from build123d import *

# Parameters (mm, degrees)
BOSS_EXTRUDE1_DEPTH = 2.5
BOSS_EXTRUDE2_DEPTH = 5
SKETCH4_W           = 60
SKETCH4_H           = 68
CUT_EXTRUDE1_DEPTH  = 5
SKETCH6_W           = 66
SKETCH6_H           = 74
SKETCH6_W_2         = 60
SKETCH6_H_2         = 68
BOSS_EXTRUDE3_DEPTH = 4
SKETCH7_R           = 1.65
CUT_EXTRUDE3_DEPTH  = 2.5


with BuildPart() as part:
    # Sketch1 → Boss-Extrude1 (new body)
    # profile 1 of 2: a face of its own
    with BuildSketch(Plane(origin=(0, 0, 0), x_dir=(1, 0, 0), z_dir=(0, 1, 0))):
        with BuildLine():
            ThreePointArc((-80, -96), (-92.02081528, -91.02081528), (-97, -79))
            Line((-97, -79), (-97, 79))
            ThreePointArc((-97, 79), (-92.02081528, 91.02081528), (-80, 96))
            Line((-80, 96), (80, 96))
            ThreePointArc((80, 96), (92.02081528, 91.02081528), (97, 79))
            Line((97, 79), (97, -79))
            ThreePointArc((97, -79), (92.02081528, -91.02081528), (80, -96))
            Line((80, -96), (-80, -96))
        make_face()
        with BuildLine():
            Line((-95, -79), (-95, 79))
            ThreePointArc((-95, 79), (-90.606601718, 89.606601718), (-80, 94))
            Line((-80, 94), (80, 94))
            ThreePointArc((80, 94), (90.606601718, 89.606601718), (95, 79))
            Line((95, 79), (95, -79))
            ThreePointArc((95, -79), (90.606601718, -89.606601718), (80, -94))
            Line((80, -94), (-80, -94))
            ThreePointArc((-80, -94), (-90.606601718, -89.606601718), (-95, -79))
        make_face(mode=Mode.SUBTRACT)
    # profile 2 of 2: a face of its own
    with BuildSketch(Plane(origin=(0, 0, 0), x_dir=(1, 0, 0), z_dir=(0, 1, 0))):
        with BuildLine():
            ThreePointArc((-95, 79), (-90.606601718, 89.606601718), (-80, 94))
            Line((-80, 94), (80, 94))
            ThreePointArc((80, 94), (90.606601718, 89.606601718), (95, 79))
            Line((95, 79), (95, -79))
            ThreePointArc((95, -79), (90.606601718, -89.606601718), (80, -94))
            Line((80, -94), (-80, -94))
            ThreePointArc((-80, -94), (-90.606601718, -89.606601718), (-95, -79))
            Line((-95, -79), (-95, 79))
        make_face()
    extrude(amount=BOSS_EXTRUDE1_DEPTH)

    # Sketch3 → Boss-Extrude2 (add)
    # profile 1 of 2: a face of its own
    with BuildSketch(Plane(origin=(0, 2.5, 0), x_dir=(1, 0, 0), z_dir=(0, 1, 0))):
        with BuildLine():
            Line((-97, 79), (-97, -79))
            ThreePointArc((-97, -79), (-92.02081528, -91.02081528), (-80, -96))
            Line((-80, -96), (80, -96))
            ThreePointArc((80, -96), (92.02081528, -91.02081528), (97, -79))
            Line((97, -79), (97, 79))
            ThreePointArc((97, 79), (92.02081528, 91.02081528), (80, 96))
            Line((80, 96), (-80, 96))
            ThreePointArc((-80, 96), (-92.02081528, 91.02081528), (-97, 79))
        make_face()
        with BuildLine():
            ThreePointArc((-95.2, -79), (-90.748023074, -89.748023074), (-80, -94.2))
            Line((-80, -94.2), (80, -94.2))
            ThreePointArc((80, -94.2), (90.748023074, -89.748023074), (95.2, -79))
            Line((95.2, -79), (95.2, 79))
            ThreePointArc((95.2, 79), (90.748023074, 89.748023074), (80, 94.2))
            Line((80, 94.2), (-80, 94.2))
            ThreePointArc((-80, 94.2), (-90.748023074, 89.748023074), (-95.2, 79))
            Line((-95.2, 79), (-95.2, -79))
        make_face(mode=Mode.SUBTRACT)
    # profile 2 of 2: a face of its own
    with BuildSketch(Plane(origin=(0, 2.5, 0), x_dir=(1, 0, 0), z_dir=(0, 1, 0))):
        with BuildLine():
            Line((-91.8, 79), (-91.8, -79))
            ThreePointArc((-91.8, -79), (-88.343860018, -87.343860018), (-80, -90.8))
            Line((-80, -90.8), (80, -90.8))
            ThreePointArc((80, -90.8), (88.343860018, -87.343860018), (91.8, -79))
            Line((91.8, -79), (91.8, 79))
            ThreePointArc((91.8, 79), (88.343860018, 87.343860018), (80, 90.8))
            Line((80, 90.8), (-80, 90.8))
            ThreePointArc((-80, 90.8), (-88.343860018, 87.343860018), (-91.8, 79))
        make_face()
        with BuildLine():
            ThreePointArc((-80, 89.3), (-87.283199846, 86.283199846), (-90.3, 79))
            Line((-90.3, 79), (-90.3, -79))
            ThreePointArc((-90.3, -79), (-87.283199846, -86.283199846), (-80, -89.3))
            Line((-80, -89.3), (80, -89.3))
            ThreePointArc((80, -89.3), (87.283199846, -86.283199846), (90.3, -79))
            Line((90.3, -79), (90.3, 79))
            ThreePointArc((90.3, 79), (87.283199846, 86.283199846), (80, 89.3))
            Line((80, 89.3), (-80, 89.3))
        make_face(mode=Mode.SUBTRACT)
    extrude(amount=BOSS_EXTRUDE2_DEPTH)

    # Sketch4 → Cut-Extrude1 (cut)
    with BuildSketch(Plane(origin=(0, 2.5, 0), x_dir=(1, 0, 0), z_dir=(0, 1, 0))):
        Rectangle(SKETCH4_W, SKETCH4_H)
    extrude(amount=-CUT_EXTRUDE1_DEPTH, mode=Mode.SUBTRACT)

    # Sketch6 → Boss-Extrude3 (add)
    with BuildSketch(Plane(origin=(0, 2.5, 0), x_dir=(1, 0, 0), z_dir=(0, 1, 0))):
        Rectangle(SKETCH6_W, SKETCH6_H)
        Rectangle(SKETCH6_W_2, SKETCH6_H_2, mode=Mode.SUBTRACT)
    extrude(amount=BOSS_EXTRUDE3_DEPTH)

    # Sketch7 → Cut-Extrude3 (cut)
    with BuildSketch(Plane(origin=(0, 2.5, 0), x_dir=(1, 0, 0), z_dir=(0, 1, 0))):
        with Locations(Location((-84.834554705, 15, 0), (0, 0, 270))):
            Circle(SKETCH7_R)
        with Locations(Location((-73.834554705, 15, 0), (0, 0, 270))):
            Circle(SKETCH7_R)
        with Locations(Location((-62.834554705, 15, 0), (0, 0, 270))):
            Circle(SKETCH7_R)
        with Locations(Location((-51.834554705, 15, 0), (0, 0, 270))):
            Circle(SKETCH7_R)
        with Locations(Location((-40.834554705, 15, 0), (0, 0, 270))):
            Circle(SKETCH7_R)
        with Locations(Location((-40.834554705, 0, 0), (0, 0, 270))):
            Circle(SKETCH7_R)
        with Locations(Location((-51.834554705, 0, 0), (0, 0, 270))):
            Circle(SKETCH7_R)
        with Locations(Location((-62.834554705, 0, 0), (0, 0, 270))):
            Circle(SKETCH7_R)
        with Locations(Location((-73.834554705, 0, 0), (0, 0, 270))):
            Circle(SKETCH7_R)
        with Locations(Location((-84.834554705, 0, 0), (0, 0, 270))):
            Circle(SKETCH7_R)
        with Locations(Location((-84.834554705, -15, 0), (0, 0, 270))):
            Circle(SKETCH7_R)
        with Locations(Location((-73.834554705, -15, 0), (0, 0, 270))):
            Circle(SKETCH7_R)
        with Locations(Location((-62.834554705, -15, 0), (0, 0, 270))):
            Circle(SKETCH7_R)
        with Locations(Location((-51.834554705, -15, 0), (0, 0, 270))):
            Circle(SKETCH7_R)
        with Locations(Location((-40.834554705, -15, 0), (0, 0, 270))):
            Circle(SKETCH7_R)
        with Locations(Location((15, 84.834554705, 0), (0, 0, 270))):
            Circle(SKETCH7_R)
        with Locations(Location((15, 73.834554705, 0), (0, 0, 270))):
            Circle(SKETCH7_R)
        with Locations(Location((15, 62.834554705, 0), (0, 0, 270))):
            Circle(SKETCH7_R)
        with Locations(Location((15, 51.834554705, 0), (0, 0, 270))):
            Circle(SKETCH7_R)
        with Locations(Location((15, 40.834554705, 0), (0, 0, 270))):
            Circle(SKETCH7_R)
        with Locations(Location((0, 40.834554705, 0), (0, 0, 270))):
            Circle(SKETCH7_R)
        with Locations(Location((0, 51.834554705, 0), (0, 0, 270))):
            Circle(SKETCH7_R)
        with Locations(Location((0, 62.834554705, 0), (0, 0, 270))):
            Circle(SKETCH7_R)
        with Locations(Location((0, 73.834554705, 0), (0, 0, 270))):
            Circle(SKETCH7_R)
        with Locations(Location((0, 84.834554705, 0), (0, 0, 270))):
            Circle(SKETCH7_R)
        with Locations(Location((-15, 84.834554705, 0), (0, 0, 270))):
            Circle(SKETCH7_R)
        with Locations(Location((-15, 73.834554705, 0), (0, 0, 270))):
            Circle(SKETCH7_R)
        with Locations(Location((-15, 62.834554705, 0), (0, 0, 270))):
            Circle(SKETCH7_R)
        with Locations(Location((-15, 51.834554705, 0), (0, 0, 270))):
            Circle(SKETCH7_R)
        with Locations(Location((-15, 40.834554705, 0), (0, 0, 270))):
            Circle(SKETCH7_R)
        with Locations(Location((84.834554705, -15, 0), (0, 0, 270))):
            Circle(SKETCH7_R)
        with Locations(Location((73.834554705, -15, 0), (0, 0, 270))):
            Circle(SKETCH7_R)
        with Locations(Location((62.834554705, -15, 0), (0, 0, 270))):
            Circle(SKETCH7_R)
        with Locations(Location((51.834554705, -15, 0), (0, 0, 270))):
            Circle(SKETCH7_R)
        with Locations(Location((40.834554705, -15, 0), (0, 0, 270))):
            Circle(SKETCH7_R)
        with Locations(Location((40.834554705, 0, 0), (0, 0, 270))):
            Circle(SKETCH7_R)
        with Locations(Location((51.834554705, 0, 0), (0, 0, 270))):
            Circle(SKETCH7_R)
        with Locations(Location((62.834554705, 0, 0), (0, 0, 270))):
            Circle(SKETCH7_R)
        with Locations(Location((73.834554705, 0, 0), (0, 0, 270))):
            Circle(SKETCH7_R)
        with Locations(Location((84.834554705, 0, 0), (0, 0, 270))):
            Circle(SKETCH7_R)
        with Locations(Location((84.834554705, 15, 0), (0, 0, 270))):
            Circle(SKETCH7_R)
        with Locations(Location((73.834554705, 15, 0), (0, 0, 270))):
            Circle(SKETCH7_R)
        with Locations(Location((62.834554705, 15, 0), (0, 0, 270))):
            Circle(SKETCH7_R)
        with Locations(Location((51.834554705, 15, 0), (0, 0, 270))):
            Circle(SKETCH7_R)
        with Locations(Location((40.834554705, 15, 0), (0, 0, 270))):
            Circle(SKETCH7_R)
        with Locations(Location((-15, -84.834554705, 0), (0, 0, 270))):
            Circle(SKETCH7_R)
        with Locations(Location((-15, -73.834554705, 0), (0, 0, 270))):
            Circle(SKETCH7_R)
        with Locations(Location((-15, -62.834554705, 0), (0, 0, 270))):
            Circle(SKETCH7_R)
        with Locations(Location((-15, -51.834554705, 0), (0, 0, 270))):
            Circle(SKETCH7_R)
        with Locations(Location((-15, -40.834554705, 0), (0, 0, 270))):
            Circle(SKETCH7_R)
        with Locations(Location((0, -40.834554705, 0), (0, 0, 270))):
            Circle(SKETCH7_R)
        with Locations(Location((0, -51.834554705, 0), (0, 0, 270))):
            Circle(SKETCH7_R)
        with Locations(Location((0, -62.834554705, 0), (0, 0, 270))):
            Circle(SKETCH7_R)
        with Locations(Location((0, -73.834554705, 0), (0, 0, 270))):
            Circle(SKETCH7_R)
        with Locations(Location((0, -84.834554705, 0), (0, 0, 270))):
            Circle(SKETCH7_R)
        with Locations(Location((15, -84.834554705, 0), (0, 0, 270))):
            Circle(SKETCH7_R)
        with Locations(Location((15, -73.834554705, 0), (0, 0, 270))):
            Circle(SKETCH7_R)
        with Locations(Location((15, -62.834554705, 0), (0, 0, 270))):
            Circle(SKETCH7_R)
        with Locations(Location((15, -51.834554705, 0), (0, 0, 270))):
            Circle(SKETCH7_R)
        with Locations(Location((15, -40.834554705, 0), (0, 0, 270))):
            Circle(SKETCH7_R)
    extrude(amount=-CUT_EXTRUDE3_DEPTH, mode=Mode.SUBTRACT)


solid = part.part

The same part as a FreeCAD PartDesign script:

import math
import FreeCAD as App
import Part
import Sketcher

V = App.Vector
Q = App.Units.Quantity


def add_polygon(sketch, points):
    """Adds a closed chain of lines whose ends are joined by coincident constraints."""
    first, n = sketch.GeometryCount, len(points)
    for a, b in zip(points, points[1:] + points[:1]):
        sketch.addGeometry(Part.LineSegment(App.Vector(*a, 0), App.Vector(*b, 0)), False)
    for i in range(n):
        sketch.addConstraint(Sketcher.Constraint("Coincident", first + i, 2, first + (i + 1) % n, 1))

doc = App.newDocument("Part")
params = doc.addObject("Spreadsheet::Sheet", "Params")
for row, (alias, value) in enumerate([
    ("sketch1_radius", "17 mm"),
    ("sketch1_width", "160 mm"),
    ("sketch1_height", "158 mm"),
    ("pad1_length", "2.5 mm"),
    ("sketch2_radius", "17 mm"),
    ("sketch2_radius2", "15.2 mm"),
    ("sketch2_radius3", "11.8 mm"),
    ("sketch2_radius4", "10.3 mm"),
    ("sketch2_width", "160 mm"),
    ("pad2_length", "5 mm"),
    ("sketch3_width", "60 mm"),
    ("sketch3_height", "68 mm"),
    ("pocket1_length", "5 mm"),
    ("sketch4_width", "66 mm"),
    ("sketch4_width2", "60 mm"),
    ("sketch4_height", "74 mm"),
    ("sketch4_height2", "68 mm"),
    ("pad3_length", "4 mm"),
    ("sketch5_diameter", "3.3 mm"),
    ("pocket2_length", "2.5 mm"),
], start=1):
    params.set(f"A{row}", alias)
    params.set(f"B{row}", "=" + value)
    params.setAlias(f"B{row}", alias)

body = doc.addObject("PartDesign::Body", "Body")

# Sketch on XZ plane
sketch1 = doc.addObject("Sketcher::SketchObject", "Sketch")
body.addObject(sketch1)
sketch1.AttachmentSupport = (doc.XZ_Plane, [""])
sketch1.MapMode = "FlatFace"
sketch1.addGeometry([
    Part.ArcOfCircle(Part.Circle(V(-80, 79, 0), V(0, 0, 1), 17), math.radians(90), math.radians(180)),  # 0
    Part.LineSegment(V(-80, 96, 0), V(80, 96, 0)),  # 1
    Part.ArcOfCircle(Part.Circle(V(80, 79, 0), V(0, 0, 1), 17), math.radians(0), math.radians(90)),  # 2
    Part.LineSegment(V(97, 79, 0), V(97, -79, 0)),  # 3
    Part.ArcOfCircle(Part.Circle(V(80, -79, 0), V(0, 0, 1), 17), math.radians(-90), math.radians(0)),  # 4
    Part.LineSegment(V(80, -96, 0), V(-80, -96, 0)),  # 5
    Part.ArcOfCircle(Part.Circle(V(-80, -79, 0), V(0, 0, 1), 17), math.radians(-180), math.radians(-90)),  # 6
    Part.LineSegment(V(-97, -79, 0), V(-97, 79, 0)),  # 7
], False)
sketch1.addConstraint([
    Sketcher.Constraint("Tangent", 0, 1, 1, 1),
    Sketcher.Constraint("Tangent", 1, 2, 2, 2),
    Sketcher.Constraint("Tangent", 2, 1, 3, 1),
    Sketcher.Constraint("Tangent", 3, 2, 4, 2),
    Sketcher.Constraint("Tangent", 4, 1, 5, 1),
    Sketcher.Constraint("Tangent", 5, 2, 6, 2),
    Sketcher.Constraint("Tangent", 6, 1, 7, 1),
    Sketcher.Constraint("Tangent", 7, 2, 0, 2),
    Sketcher.Constraint("Horizontal", 1),
    Sketcher.Constraint("Vertical", 3),
    Sketcher.Constraint("Horizontal", 5),
    Sketcher.Constraint("Vertical", 7),
    Sketcher.Constraint("Equal", 0, 2),
    Sketcher.Constraint("Equal", 2, 4),
    Sketcher.Constraint("Equal", 4, 6),
    Sketcher.Constraint("Symmetric", 0, 3, 4, 3, -1, 1),
    Sketcher.Constraint("Radius", 0, Q("17 mm")),
    Sketcher.Constraint("DistanceX", 1, 1, 1, 2, Q("160 mm")),
    Sketcher.Constraint("DistanceY", 3, 2, 3, 1, Q("158 mm")),
])
sketch1.setExpression("Constraints[16]", "Params.sketch1_radius")
sketch1.setExpression("Constraints[17]", "Params.sketch1_width")
sketch1.setExpression("Constraints[18]", "Params.sketch1_height")
pad1 = doc.addObject("PartDesign::Pad", "Pad")
body.addObject(pad1)
pad1.Profile = sketch1
pad1.setExpression("Length", "Params.pad1_length")
pad1.Reversed = True

# Sketch on XZ plane
sketch2 = doc.addObject("Sketcher::SketchObject", "Sketch001")
body.addObject(sketch2)
sketch2.AttachmentSupport = (doc.XZ_Plane, [""])
sketch2.MapMode = "FlatFace"
sketch2.AttachmentOffset = App.Placement(V(0, 0, -2.5), App.Rotation())
sketch2.addGeometry([
    Part.LineSegment(V(-97, -79, 0), V(-97, 79, 0)),  # 0
    Part.ArcOfCircle(Part.Circle(V(-80, 79, 0), V(0, 0, 1), 17), math.radians(90), math.radians(180)),  # 1
    Part.LineSegment(V(-80, 96, 0), V(80, 96, 0)),  # 2
    Part.ArcOfCircle(Part.Circle(V(80, 79, 0), V(0, 0, 1), 17), math.radians(0), math.radians(90)),  # 3
    Part.LineSegment(V(97, 79, 0), V(97, -79, 0)),  # 4
    Part.ArcOfCircle(Part.Circle(V(80, -79, 0), V(0, 0, 1), 17), math.radians(-90), math.radians(0)),  # 5
    Part.LineSegment(V(80, -96, 0), V(-80, -96, 0)),  # 6
    Part.ArcOfCircle(Part.Circle(V(-80, -79, 0), V(0, 0, 1), 17), math.radians(-180), math.radians(-90)),  # 7
    Part.ArcOfCircle(Part.Circle(V(-80, 79, 0), V(0, 0, 1), 15), math.radians(90), math.radians(180)),  # 8
    Part.LineSegment(V(-95, 79, 0), V(-95, -79, 0)),  # 9
    Part.ArcOfCircle(Part.Circle(V(-80, -79, 0), V(0, 0, 1), 15), math.radians(180), math.radians(270)),  # 10
    Part.LineSegment(V(-80, -94, 0), V(80, -94, 0)),  # 11
    Part.ArcOfCircle(Part.Circle(V(80, -79, 0), V(0, 0, 1), 15), math.radians(-90), math.radians(0)),  # 12
    Part.LineSegment(V(95, -79, 0), V(95, 79, 0)),  # 13
    Part.ArcOfCircle(Part.Circle(V(80, 79, 0), V(0, 0, 1), 15), math.radians(0), math.radians(90)),  # 14
    Part.LineSegment(V(80, 94, 0), V(-80, 94, 0)),  # 15
    Part.LineSegment(V(-92, -79, 0), V(-92, 79, 0)),  # 16
    Part.ArcOfCircle(Part.Circle(V(-80, 79, 0), V(0, 0, 1), 12), math.radians(90), math.radians(180)),  # 17
    Part.LineSegment(V(-80, 91, 0), V(80, 91, 0)),  # 18
    Part.ArcOfCircle(Part.Circle(V(80, 79, 0), V(0, 0, 1), 12), math.radians(0), math.radians(90)),  # 19
    Part.LineSegment(V(92, 79, 0), V(92, -79, 0)),  # 20
    Part.ArcOfCircle(Part.Circle(V(80, -79, 0), V(0, 0, 1), 12), math.radians(-90), math.radians(0)),  # 21
    Part.LineSegment(V(80, -91, 0), V(-80, -91, 0)),  # 22
    Part.ArcOfCircle(Part.Circle(V(-80, -79, 0), V(0, 0, 1), 12), math.radians(180), math.radians(270)),  # 23
    Part.ArcOfCircle(Part.Circle(V(-80, -79, 0), V(0, 0, 1), 10), math.radians(-180), math.radians(-90)),  # 24
    Part.LineSegment(V(-80, -89, 0), V(80, -89, 0)),  # 25
    Part.ArcOfCircle(Part.Circle(V(80, -79, 0), V(0, 0, 1), 10), math.radians(-90), math.radians(0)),  # 26
    Part.LineSegment(V(90, -79, 0), V(90, 79, 0)),  # 27
    Part.ArcOfCircle(Part.Circle(V(80, 79, 0), V(0, 0, 1), 10), math.radians(0), math.radians(90)),  # 28
    Part.LineSegment(V(80, 89, 0), V(-80, 89, 0)),  # 29
    Part.ArcOfCircle(Part.Circle(V(-80, 79, 0), V(0, 0, 1), 10), math.radians(90), math.radians(180)),  # 30
    Part.LineSegment(V(-90, 79, 0), V(-90, -79, 0)),  # 31
], False)
sketch2.addConstraint([
    Sketcher.Constraint("Tangent", 0, 2, 1, 2),
    Sketcher.Constraint("Tangent", 1, 1, 2, 1),
    Sketcher.Constraint("Tangent", 2, 2, 3, 2),
    Sketcher.Constraint("Tangent", 3, 1, 4, 1),
    Sketcher.Constraint("Tangent", 4, 2, 5, 2),
    Sketcher.Constraint("Tangent", 5, 1, 6, 1),
    Sketcher.Constraint("Tangent", 6, 2, 7, 2),
    Sketcher.Constraint("Tangent", 7, 1, 0, 1),
    Sketcher.Constraint("Tangent", 8, 2, 9, 1),
    Sketcher.Constraint("Tangent", 9, 2, 10, 1),
    Sketcher.Constraint("Tangent", 10, 2, 11, 1),
    Sketcher.Constraint("Tangent", 11, 2, 12, 1),
    Sketcher.Constraint("Tangent", 12, 2, 13, 1),
    Sketcher.Constraint("Tangent", 13, 2, 14, 1),
    Sketcher.Constraint("Tangent", 14, 2, 15, 1),
    Sketcher.Constraint("Tangent", 15, 2, 8, 1),
    Sketcher.Constraint("Tangent", 16, 2, 17, 2),
    Sketcher.Constraint("Tangent", 17, 1, 18, 1),
    Sketcher.Constraint("Tangent", 18, 2, 19, 2),
    Sketcher.Constraint("Tangent", 19, 1, 20, 1),
    Sketcher.Constraint("Tangent", 20, 2, 21, 2),
    Sketcher.Constraint("Tangent", 21, 1, 22, 1),
    Sketcher.Constraint("Tangent", 22, 2, 23, 2),
    Sketcher.Constraint("Tangent", 23, 1, 16, 1),
    Sketcher.Constraint("Tangent", 24, 2, 25, 1),
    Sketcher.Constraint("Tangent", 25, 2, 26, 1),
    Sketcher.Constraint("Tangent", 26, 2, 27, 1),
    Sketcher.Constraint("Tangent", 27, 2, 28, 1),
    Sketcher.Constraint("Tangent", 28, 2, 29, 1),
    Sketcher.Constraint("Tangent", 29, 2, 30, 1),
    Sketcher.Constraint("Tangent", 30, 2, 31, 1),
    Sketcher.Constraint("Tangent", 31, 2, 24, 1),
    Sketcher.Constraint("Vertical", 0),
    Sketcher.Constraint("Horizontal", 2),
    Sketcher.Constraint("Vertical", 4),
    Sketcher.Constraint("Horizontal", 6),
    Sketcher.Constraint("Vertical", 9),
    Sketcher.Constraint("Horizontal", 11),
    Sketcher.Constraint("Vertical", 13),
    Sketcher.Constraint("Horizontal", 15),
    Sketcher.Constraint("Vertical", 16),
    Sketcher.Constraint("Horizontal", 18),
    Sketcher.Constraint("Vertical", 20),
    Sketcher.Constraint("Horizontal", 22),
    Sketcher.Constraint("Horizontal", 25),
    Sketcher.Constraint("Vertical", 27),
    Sketcher.Constraint("Horizontal", 29),
    Sketcher.Constraint("Vertical", 31),
    Sketcher.Constraint("Coincident", 8, 3, 1, 3),
    Sketcher.Constraint("Coincident", 10, 3, 7, 3),
    Sketcher.Constraint("Coincident", 12, 3, 5, 3),
    Sketcher.Constraint("Coincident", 17, 3, 1, 3),
    Sketcher.Constraint("Coincident", 19, 3, 3, 3),
    Sketcher.Constraint("Coincident", 21, 3, 5, 3),
    Sketcher.Constraint("Coincident", 24, 3, 7, 3),
    Sketcher.Constraint("Coincident", 26, 3, 5, 3),
    Sketcher.Constraint("Coincident", 28, 3, 3, 3),
    Sketcher.Constraint("Equal", 1, 3),
    Sketcher.Constraint("Equal", 3, 5),
    Sketcher.Constraint("Equal", 5, 7),
    Sketcher.Constraint("Equal", 12, 14),
    Sketcher.Constraint("Equal", 21, 23),
    Sketcher.Constraint("Equal", 28, 30),
    Sketcher.Constraint("Symmetric", 1, 3, 5, 3, -1, 1),
    Sketcher.Constraint("Radius", 1, Q("17 mm")),
    Sketcher.Constraint("Radius", 8, Q("15.2 mm")),
    Sketcher.Constraint("Radius", 17, Q("11.8 mm")),
    Sketcher.Constraint("Radius", 24, Q("10.3 mm")),
    Sketcher.Constraint("DistanceX", 2, 1, 2, 2, Q("160 mm")),
    Sketcher.Constraint("DistanceY", 0, 1, 0, 2, Q("158 mm")),
])
sketch2.setExpression("Constraints[64]", "Params.sketch2_radius")
sketch2.setExpression("Constraints[65]", "Params.sketch2_radius2")
sketch2.setExpression("Constraints[66]", "Params.sketch2_radius3")
sketch2.setExpression("Constraints[67]", "Params.sketch2_radius4")
sketch2.setExpression("Constraints[68]", "Params.sketch2_width")
pad2 = doc.addObject("PartDesign::Pad", "Pad001")
body.addObject(pad2)
pad2.Profile = sketch2
pad2.setExpression("Length", "Params.pad2_length")
pad2.Reversed = True

# Sketch on XZ plane
sketch3 = doc.addObject("Sketcher::SketchObject", "Sketch002")
body.addObject(sketch3)
sketch3.AttachmentSupport = (doc.XZ_Plane, [""])
sketch3.MapMode = "FlatFace"
sketch3.AttachmentOffset = App.Placement(V(0, 0, -2.5), App.Rotation())
add_polygon(sketch3, [(-30, -34), (-30, 34), (30, 34), (30, -34)])  # lines 0-3
sketch3.addConstraint([
    Sketcher.Constraint("Vertical", 0),
    Sketcher.Constraint("Horizontal", 1),
    Sketcher.Constraint("Vertical", 2),
    Sketcher.Constraint("Horizontal", 3),
    Sketcher.Constraint("Symmetric", 0, 2, 2, 2, -1, 1),
    Sketcher.Constraint("DistanceX", 1, 1, 1, 2, Q("60 mm")),
    Sketcher.Constraint("DistanceY", 0, 1, 0, 2, Q("68 mm")),
])
sketch3.setExpression("Constraints[9]", "Params.sketch3_width")
sketch3.setExpression("Constraints[10]", "Params.sketch3_height")
pocket1 = doc.addObject("PartDesign::Pocket", "Pocket")
body.addObject(pocket1)
pocket1.Profile = sketch3
pocket1.setExpression("Length", "Params.pocket1_length")
pocket1.Reversed = True

# Sketch on XZ plane
sketch4 = doc.addObject("Sketcher::SketchObject", "Sketch003")
body.addObject(sketch4)
sketch4.AttachmentSupport = (doc.XZ_Plane, [""])
sketch4.MapMode = "FlatFace"
sketch4.AttachmentOffset = App.Placement(V(0, 0, -2.5), App.Rotation())
add_polygon(sketch4, [(-33, -37), (-33, 37), (33, 37), (33, -37)])  # lines 0-3
add_polygon(sketch4, [(30, 34), (-30, 34), (-30, -34), (30, -34)])  # lines 4-7
sketch4.addConstraint([
    Sketcher.Constraint("Vertical", 0),
    Sketcher.Constraint("Horizontal", 1),
    Sketcher.Constraint("Vertical", 2),
    Sketcher.Constraint("Horizontal", 3),
    Sketcher.Constraint("Horizontal", 4),
    Sketcher.Constraint("Vertical", 5),
    Sketcher.Constraint("Horizontal", 6),
    Sketcher.Constraint("Vertical", 7),
    Sketcher.Constraint("Symmetric", 0, 2, 2, 2, -1, 1),
    Sketcher.Constraint("Symmetric", 4, 2, 6, 2, -1, 1),
    Sketcher.Constraint("DistanceX", 1, 1, 1, 2, Q("66 mm")),
    Sketcher.Constraint("DistanceX", 4, 2, 4, 1, Q("60 mm")),
    Sketcher.Constraint("DistanceY", 0, 1, 0, 2, Q("74 mm")),
    Sketcher.Constraint("DistanceY", 5, 2, 5, 1, Q("68 mm")),
])
sketch4.setExpression("Constraints[18]", "Params.sketch4_width")
sketch4.setExpression("Constraints[19]", "Params.sketch4_width2")
sketch4.setExpression("Constraints[20]", "Params.sketch4_height")
sketch4.setExpression("Constraints[21]", "Params.sketch4_height2")
pad3 = doc.addObject("PartDesign::Pad", "Pad002")
body.addObject(pad3)
pad3.Profile = sketch4
pad3.setExpression("Length", "Params.pad3_length")
pad3.Reversed = True

# Sketch on XZ plane
sketch5 = doc.addObject("Sketcher::SketchObject", "Sketch004")
body.addObject(sketch5)
sketch5.AttachmentSupport = (doc.XZ_Plane, [""])
sketch5.MapMode = "FlatFace"
sketch5.AttachmentOffset = App.Placement(V(0, 0, -2.5), App.Rotation())
sketch5.addGeometry([
    Part.Circle(V(-84.8, -15, 0), V(0, 0, 1), 1.6),  # 0
    Part.Circle(V(-73.8, -15, 0), V(0, 0, 1), 1.6),  # 1
    Part.Circle(V(-62.8, -15, 0), V(0, 0, 1), 1.6),  # 2
    Part.Circle(V(-51.8, -15, 0), V(0, 0, 1), 1.6),  # 3
    Part.Circle(V(-40.8, -15, 0), V(0, 0, 1), 1.6),  # 4
    Part.Circle(V(-40.8, 0, 0), V(0, 0, 1), 1.6),  # 5
    Part.Circle(V(-51.8, 0, 0), V(0, 0, 1), 1.6),  # 6
    Part.Circle(V(-62.8, 0, 0), V(0, 0, 1), 1.6),  # 7
    Part.Circle(V(-73.8, 0, 0), V(0, 0, 1), 1.6),  # 8
    Part.Circle(V(-84.8, 0, 0), V(0, 0, 1), 1.6),  # 9
    Part.Circle(V(-84.8, 15, 0), V(0, 0, 1), 1.6),  # 10
    Part.Circle(V(-73.8, 15, 0), V(0, 0, 1), 1.6),  # 11
    Part.Circle(V(-62.8, 15, 0), V(0, 0, 1), 1.6),  # 12
    Part.Circle(V(-51.8, 15, 0), V(0, 0, 1), 1.6),  # 13
    Part.Circle(V(-40.8, 15, 0), V(0, 0, 1), 1.6),  # 14
    Part.Circle(V(15, -84.8, 0), V(0, 0, 1), 1.6),  # 15
    Part.Circle(V(15, -73.8, 0), V(0, 0, 1), 1.6),  # 16
    Part.Circle(V(15, -62.8, 0), V(0, 0, 1), 1.6),  # 17
    Part.Circle(V(15, -51.8, 0), V(0, 0, 1), 1.6),  # 18
    Part.Circle(V(15, -40.8, 0), V(0, 0, 1), 1.6),  # 19
    Part.Circle(V(0, -40.8, 0), V(0, 0, 1), 1.6),  # 20
    Part.Circle(V(0, -51.8, 0), V(0, 0, 1), 1.6),  # 21
    Part.Circle(V(0, -62.8, 0), V(0, 0, 1), 1.6),  # 22
    Part.Circle(V(0, -73.8, 0), V(0, 0, 1), 1.6),  # 23
    Part.Circle(V(0, -84.8, 0), V(0, 0, 1), 1.6),  # 24
    Part.Circle(V(-15, -84.8, 0), V(0, 0, 1), 1.6),  # 25
    Part.Circle(V(-15, -73.8, 0), V(0, 0, 1), 1.6),  # 26
    Part.Circle(V(-15, -62.8, 0), V(0, 0, 1), 1.6),  # 27
    Part.Circle(V(-15, -51.8, 0), V(0, 0, 1), 1.6),  # 28
    Part.Circle(V(-15, -40.8, 0), V(0, 0, 1), 1.6),  # 29
    Part.Circle(V(84.8, 15, 0), V(0, 0, 1), 1.6),  # 30
    Part.Circle(V(73.8, 15, 0), V(0, 0, 1), 1.6),  # 31
    Part.Circle(V(62.8, 15, 0), V(0, 0, 1), 1.6),  # 32
    Part.Circle(V(51.8, 15, 0), V(0, 0, 1), 1.6),  # 33
    Part.Circle(V(40.8, 15, 0), V(0, 0, 1), 1.6),  # 34
    Part.Circle(V(40.8, 0, 0), V(0, 0, 1), 1.6),  # 35
    Part.Circle(V(51.8, 0, 0), V(0, 0, 1), 1.6),  # 36
    Part.Circle(V(62.8, 0, 0), V(0, 0, 1), 1.6),  # 37
    Part.Circle(V(73.8, 0, 0), V(0, 0, 1), 1.6),  # 38
    Part.Circle(V(84.8, 0, 0), V(0, 0, 1), 1.6),  # 39
    Part.Circle(V(84.8, -15, 0), V(0, 0, 1), 1.6),  # 40
    Part.Circle(V(73.8, -15, 0), V(0, 0, 1), 1.6),  # 41
    Part.Circle(V(62.8, -15, 0), V(0, 0, 1), 1.6),  # 42
    Part.Circle(V(51.8, -15, 0), V(0, 0, 1), 1.6),  # 43
    Part.Circle(V(40.8, -15, 0), V(0, 0, 1), 1.6),  # 44
    Part.Circle(V(-15, 84.8, 0), V(0, 0, 1), 1.6),  # 45
    Part.Circle(V(-15, 73.8, 0), V(0, 0, 1), 1.6),  # 46
    Part.Circle(V(-15, 62.8, 0), V(0, 0, 1), 1.6),  # 47
    Part.Circle(V(-15, 51.8, 0), V(0, 0, 1), 1.6),  # 48
    Part.Circle(V(-15, 40.8, 0), V(0, 0, 1), 1.6),  # 49
    Part.Circle(V(0, 40.8, 0), V(0, 0, 1), 1.6),  # 50
    Part.Circle(V(0, 51.8, 0), V(0, 0, 1), 1.6),  # 51
    Part.Circle(V(0, 62.8, 0), V(0, 0, 1), 1.6),  # 52
    Part.Circle(V(0, 73.8, 0), V(0, 0, 1), 1.6),  # 53
    Part.Circle(V(0, 84.8, 0), V(0, 0, 1), 1.6),  # 54
    Part.Circle(V(15, 84.8, 0), V(0, 0, 1), 1.6),  # 55
    Part.Circle(V(15, 73.8, 0), V(0, 0, 1), 1.6),  # 56
    Part.Circle(V(15, 62.8, 0), V(0, 0, 1), 1.6),  # 57
    Part.Circle(V(15, 51.8, 0), V(0, 0, 1), 1.6),  # 58
    Part.Circle(V(15, 40.8, 0), V(0, 0, 1), 1.6),  # 59
], False)
sketch5.addConstraint([
    Sketcher.Constraint("Equal", 0, 1),
    Sketcher.Constraint("Equal", 1, 2),
    Sketcher.Constraint("Equal", 2, 3),
    Sketcher.Constraint("Equal", 3, 4),
    Sketcher.Constraint("Equal", 4, 5),
    Sketcher.Constraint("Equal", 5, 6),
    Sketcher.Constraint("Equal", 6, 7),
    Sketcher.Constraint("Equal", 7, 8),
    Sketcher.Constraint("Equal", 8, 9),
    Sketcher.Constraint("Equal", 9, 10),
    Sketcher.Constraint("Equal", 10, 11),
    Sketcher.Constraint("Equal", 11, 12),
    Sketcher.Constraint("Equal", 12, 13),
    Sketcher.Constraint("Equal", 13, 14),
    Sketcher.Constraint("Equal", 14, 15),
    Sketcher.Constraint("Equal", 15, 16),
    Sketcher.Constraint("Equal", 16, 17),
    Sketcher.Constraint("Equal", 17, 18),
    Sketcher.Constraint("Equal", 18, 19),
    Sketcher.Constraint("Equal", 19, 20),
    Sketcher.Constraint("Equal", 20, 21),
    Sketcher.Constraint("Equal", 21, 22),
    Sketcher.Constraint("Equal", 22, 23),
    Sketcher.Constraint("Equal", 23, 24),
    Sketcher.Constraint("Equal", 24, 25),
    Sketcher.Constraint("Equal", 25, 26),
    Sketcher.Constraint("Equal", 26, 27),
    Sketcher.Constraint("Equal", 27, 28),
    Sketcher.Constraint("Equal", 28, 29),
    Sketcher.Constraint("Equal", 29, 30),
    Sketcher.Constraint("Equal", 30, 31),
    Sketcher.Constraint("Equal", 31, 32),
    Sketcher.Constraint("Equal", 32, 33),
    Sketcher.Constraint("Equal", 33, 34),
    Sketcher.Constraint("Equal", 34, 35),
    Sketcher.Constraint("Equal", 35, 36),
    Sketcher.Constraint("Equal", 36, 37),
    Sketcher.Constraint("Equal", 37, 38),
    Sketcher.Constraint("Equal", 38, 39),
    Sketcher.Constraint("Equal", 39, 40),
    Sketcher.Constraint("Equal", 40, 41),
    Sketcher.Constraint("Equal", 41, 42),
    Sketcher.Constraint("Equal", 42, 43),
    Sketcher.Constraint("Equal", 43, 44),
    Sketcher.Constraint("Equal", 44, 45),
    Sketcher.Constraint("Equal", 45, 46),
    Sketcher.Constraint("Equal", 46, 47),
    Sketcher.Constraint("Equal", 47, 48),
    Sketcher.Constraint("Equal", 48, 49),
    Sketcher.Constraint("Equal", 49, 50),
    Sketcher.Constraint("Equal", 50, 51),
    Sketcher.Constraint("Equal", 51, 52),
    Sketcher.Constraint("Equal", 52, 53),
    Sketcher.Constraint("Equal", 53, 54),
    Sketcher.Constraint("Equal", 54, 55),
    Sketcher.Constraint("Equal", 55, 56),
    Sketcher.Constraint("Equal", 56, 57),
    Sketcher.Constraint("Equal", 57, 58),
    Sketcher.Constraint("Equal", 58, 59),
    Sketcher.Constraint("Symmetric", 0, 3, 30, 3, -1, 1),
    Sketcher.Constraint("Symmetric", 1, 3, 31, 3, -1, 1),
    Sketcher.Constraint("Symmetric", 2, 3, 32, 3, -1, 1),
    Sketcher.Constraint("Symmetric", 3, 3, 33, 3, -1, 1),
    Sketcher.Constraint("Symmetric", 4, 3, 34, 3, -1, 1),
    Sketcher.Constraint("Symmetric", 5, 3, 35, 3, -1, 1),
    Sketcher.Constraint("Symmetric", 6, 3, 36, 3, -1, 1),
    Sketcher.Constraint("Symmetric", 7, 3, 37, 3, -1, 1),
    Sketcher.Constraint("Symmetric", 8, 3, 38, 3, -1, 1),
    Sketcher.Constraint("Symmetric", 9, 3, 39, 3, -1, 1),
    Sketcher.Constraint("Symmetric", 10, 3, 40, 3, -1, 1),
    Sketcher.Constraint("Symmetric", 11, 3, 41, 3, -1, 1),
    Sketcher.Constraint("Symmetric", 12, 3, 42, 3, -1, 1),
    Sketcher.Constraint("Symmetric", 13, 3, 43, 3, -1, 1),
    Sketcher.Constraint("Symmetric", 14, 3, 44, 3, -1, 1),
    Sketcher.Constraint("Symmetric", 15, 3, 45, 3, -1, 1),
    Sketcher.Constraint("Symmetric", 16, 3, 46, 3, -1, 1),
    Sketcher.Constraint("Symmetric", 17, 3, 47, 3, -1, 1),
    Sketcher.Constraint("Symmetric", 18, 3, 48, 3, -1, 1),
    Sketcher.Constraint("Symmetric", 19, 3, 49, 3, -1, 1),
    Sketcher.Constraint("Symmetric", 20, 3, 50, 3, -1, 1),
    Sketcher.Constraint("Symmetric", 21, 3, 51, 3, -1, 1),
    Sketcher.Constraint("Symmetric", 22, 3, 52, 3, -1, 1),
    Sketcher.Constraint("Symmetric", 23, 3, 53, 3, -1, 1),
    Sketcher.Constraint("Symmetric", 24, 3, 54, 3, -1, 1),
    Sketcher.Constraint("Symmetric", 25, 3, 55, 3, -1, 1),
    Sketcher.Constraint("Symmetric", 26, 3, 56, 3, -1, 1),
    Sketcher.Constraint("Symmetric", 27, 3, 57, 3, -1, 1),
    Sketcher.Constraint("Symmetric", 28, 3, 58, 3, -1, 1),
    Sketcher.Constraint("Symmetric", 29, 3, 59, 3, -1, 1),
    Sketcher.Constraint("Symmetric", 15, 3, 25, 3, -2),
    Sketcher.Constraint("Symmetric", 16, 3, 26, 3, -2),
    Sketcher.Constraint("Symmetric", 17, 3, 27, 3, -2),
    Sketcher.Constraint("Symmetric", 18, 3, 28, 3, -2),
    Sketcher.Constraint("Symmetric", 19, 3, 29, 3, -2),
    Sketcher.Constraint("Symmetric", 10, 3, 30, 3, -2),
    Sketcher.Constraint("Symmetric", 11, 3, 31, 3, -2),
    Sketcher.Constraint("Symmetric", 12, 3, 32, 3, -2),
    Sketcher.Constraint("Symmetric", 13, 3, 33, 3, -2),
    Sketcher.Constraint("Symmetric", 14, 3, 34, 3, -2),
    Sketcher.Constraint("PointOnObject", 5, 3, -1),
    Sketcher.Constraint("PointOnObject", 6, 3, -1),
    Sketcher.Constraint("PointOnObject", 7, 3, -1),
    Sketcher.Constraint("PointOnObject", 8, 3, -1),
    Sketcher.Constraint("PointOnObject", 9, 3, -1),
    Sketcher.Constraint("PointOnObject", 20, 3, -2),
    Sketcher.Constraint("PointOnObject", 21, 3, -2),
    Sketcher.Constraint("PointOnObject", 22, 3, -2),
    Sketcher.Constraint("PointOnObject", 23, 3, -2),
    Sketcher.Constraint("PointOnObject", 24, 3, -2),
    Sketcher.Constraint("Horizontal", 0, 3, 1, 3),
    Sketcher.Constraint("Horizontal", 1, 3, 2, 3),
    Sketcher.Constraint("Horizontal", 2, 3, 3, 3),
    Sketcher.Constraint("Horizontal", 3, 3, 4, 3),
    Sketcher.Constraint("Horizontal", 19, 3, 20, 3),
    Sketcher.Constraint("Horizontal", 18, 3, 21, 3),
    Sketcher.Constraint("Horizontal", 17, 3, 22, 3),
    Sketcher.Constraint("Horizontal", 16, 3, 23, 3),
    Sketcher.Constraint("Horizontal", 15, 3, 24, 3),
    Sketcher.Constraint("Vertical", 4, 3, 5, 3),
    Sketcher.Constraint("Vertical", 3, 3, 6, 3),
    Sketcher.Constraint("Vertical", 2, 3, 7, 3),
    Sketcher.Constraint("Vertical", 1, 3, 8, 3),
    Sketcher.Constraint("Vertical", 0, 3, 9, 3),
    Sketcher.Constraint("Vertical", 15, 3, 16, 3),
    Sketcher.Constraint("Vertical", 16, 3, 17, 3),
    Sketcher.Constraint("Vertical", 17, 3, 18, 3),
    Sketcher.Constraint("Vertical", 18, 3, 19, 3),
    Sketcher.Constraint("Diameter", 0, Q("3.3 mm")),
    Sketcher.Constraint("DistanceY", 0, 3, -1, 1, Q("15 mm")),
    Sketcher.Constraint("DistanceX", -1, 1, 15, 3, Q("15 mm")),
    Sketcher.Constraint("DistanceX", 0, 3, 1, 3, Q("11 mm")),
    Sketcher.Constraint("DistanceX", 1, 3, 2, 3, Q("11 mm")),
    Sketcher.Constraint("DistanceX", 2, 3, 3, 3, Q("11 mm")),
    Sketcher.Constraint("DistanceX", 3, 3, 4, 3, Q("11 mm")),
    Sketcher.Constraint("DistanceY", 15, 3, 16, 3, Q("11 mm")),
    Sketcher.Constraint("DistanceY", 16, 3, 17, 3, Q("11 mm")),
    Sketcher.Constraint("DistanceY", 17, 3, 18, 3, Q("11 mm")),
    Sketcher.Constraint("DistanceY", 18, 3, 19, 3, Q("11 mm")),
    Sketcher.Constraint("DistanceX", 0, 3, -1, 1, Q("84.834555 mm")),
    Sketcher.Constraint("DistanceY", 15, 3, -1, 1, Q("84.834555 mm")),
])
sketch5.setExpression("Constraints[127]", "Params.sketch5_diameter")
pocket2 = doc.addObject("PartDesign::Pocket", "Pocket001")
body.addObject(pocket2)
pocket2.Profile = sketch5
pocket2.setExpression("Length", "Params.pocket2_length")
pocket2.Reversed = True

doc.recompute()
